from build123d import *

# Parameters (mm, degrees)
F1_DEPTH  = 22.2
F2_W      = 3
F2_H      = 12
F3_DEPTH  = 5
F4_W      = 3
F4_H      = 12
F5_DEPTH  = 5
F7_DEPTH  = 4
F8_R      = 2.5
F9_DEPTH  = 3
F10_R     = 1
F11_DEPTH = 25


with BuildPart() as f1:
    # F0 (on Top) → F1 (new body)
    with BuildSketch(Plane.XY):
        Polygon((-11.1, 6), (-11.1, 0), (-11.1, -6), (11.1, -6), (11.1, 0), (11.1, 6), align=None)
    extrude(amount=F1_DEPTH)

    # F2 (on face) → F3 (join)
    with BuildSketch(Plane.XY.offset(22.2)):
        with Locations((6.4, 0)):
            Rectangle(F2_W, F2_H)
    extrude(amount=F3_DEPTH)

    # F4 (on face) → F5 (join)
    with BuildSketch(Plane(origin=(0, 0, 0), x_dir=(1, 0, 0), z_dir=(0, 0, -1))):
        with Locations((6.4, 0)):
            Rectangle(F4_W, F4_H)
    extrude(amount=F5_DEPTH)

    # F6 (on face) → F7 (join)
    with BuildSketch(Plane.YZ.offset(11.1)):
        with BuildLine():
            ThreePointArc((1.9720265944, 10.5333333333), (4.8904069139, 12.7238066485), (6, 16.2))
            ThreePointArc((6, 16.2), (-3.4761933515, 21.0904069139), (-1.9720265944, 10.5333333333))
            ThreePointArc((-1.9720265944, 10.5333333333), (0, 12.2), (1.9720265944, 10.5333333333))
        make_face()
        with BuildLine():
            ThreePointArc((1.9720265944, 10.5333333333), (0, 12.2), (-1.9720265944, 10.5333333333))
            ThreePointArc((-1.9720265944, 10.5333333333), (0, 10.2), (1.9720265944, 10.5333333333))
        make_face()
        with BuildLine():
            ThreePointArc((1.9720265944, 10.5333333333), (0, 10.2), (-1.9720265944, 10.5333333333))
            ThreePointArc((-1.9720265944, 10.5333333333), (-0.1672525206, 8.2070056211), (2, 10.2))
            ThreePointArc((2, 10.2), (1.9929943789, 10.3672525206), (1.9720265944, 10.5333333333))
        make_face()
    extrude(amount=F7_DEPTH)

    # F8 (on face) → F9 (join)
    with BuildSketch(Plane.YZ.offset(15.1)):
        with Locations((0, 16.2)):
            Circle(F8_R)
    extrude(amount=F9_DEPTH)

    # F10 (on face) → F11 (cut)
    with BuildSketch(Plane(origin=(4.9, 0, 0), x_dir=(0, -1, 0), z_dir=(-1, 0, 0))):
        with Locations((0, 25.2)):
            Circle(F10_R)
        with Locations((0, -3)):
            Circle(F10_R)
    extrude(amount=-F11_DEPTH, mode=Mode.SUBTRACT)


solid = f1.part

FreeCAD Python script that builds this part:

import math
import FreeCAD as App
import Part
import Sketcher
from FreeCAD import Vector

doc = App.newDocument("Part")
body = doc.addObject("PartDesign::Body", "Body")

# Sketch on XY plane
sketch1 = doc.addObject("Sketcher::SketchObject", "Sketch")
body.addObject(sketch1)
sketch1.AttachmentSupport = (doc.XY_Plane, [""])
sketch1.MapMode = "FlatFace"
sketch1.addGeometry(Part.LineSegment(Vector(-11, 6, 0), Vector(-11, -6, 0)), False)
sketch1.addGeometry(Part.LineSegment(Vector(-11, -6, 0), Vector(11, -6, 0)), False)
sketch1.addGeometry(Part.LineSegment(Vector(11, -6, 0), Vector(11, 6, 0)), False)
sketch1.addGeometry(Part.LineSegment(Vector(11, 6, 0), Vector(-11, 6, 0)), False)
sketch1.addConstraint(Sketcher.Constraint("Coincident", 0, 2, 1, 1))
sketch1.addConstraint(Sketcher.Constraint("Coincident", 1, 2, 2, 1))
sketch1.addConstraint(Sketcher.Constraint("Coincident", 2, 2, 3, 1))
sketch1.addConstraint(Sketcher.Constraint("Coincident", 3, 2, 0, 1))
sketch1.addConstraint(Sketcher.Constraint("Vertical", 0))
sketch1.addConstraint(Sketcher.Constraint("Horizontal", 1))
sketch1.addConstraint(Sketcher.Constraint("Vertical", 2))
sketch1.addConstraint(Sketcher.Constraint("Horizontal", 3))
sketch1.addConstraint(Sketcher.Constraint("Symmetric", 0, 2, 2, 2, -1, 1))
sketch1.addConstraint(Sketcher.Constraint("DistanceY", 0, 2, 0, 1, 12.0))
sketch1.addConstraint(Sketcher.Constraint("DistanceX", 1, 1, 1, 2, 22.2))
pad1 = doc.addObject("PartDesign::Pad", "Pad")
body.addObject(pad1)
pad1.Profile = sketch1
pad1.Length = 22.2

# Sketch on XY plane
sketch2 = doc.addObject("Sketcher::SketchObject", "Sketch001")
body.addObject(sketch2)
sketch2.AttachmentSupport = (doc.XY_Plane, [""])
sketch2.MapMode = "FlatFace"
sketch2.AttachmentOffset = App.Placement(Vector(0, 0, 22.2), App.Rotation())
sketch2.addGeometry(Part.LineSegment(Vector(4.9, 6, 0), Vector(4.9, -6, 0)), False)
sketch2.addGeometry(Part.LineSegment(Vector(4.9, -6, 0), Vector(7.9, -6, 0)), False)
sketch2.addGeometry(Part.LineSegment(Vector(7.9, -6, 0), Vector(7.9, 6, 0)), False)
sketch2.addGeometry(Part.LineSegment(Vector(7.9, 6, 0), Vector(4.9, 6, 0)), False)
sketch2.addConstraint(Sketcher.Constraint("Coincident", 0, 2, 1, 1))
sketch2.addConstraint(Sketcher.Constraint("Coincident", 1, 2, 2, 1))
sketch2.addConstraint(Sketcher.Constraint("Coincident", 2, 2, 3, 1))
sketch2.addConstraint(Sketcher.Constraint("Coincident", 3, 2, 0, 1))
sketch2.addConstraint(Sketcher.Constraint("Vertical", 0))
sketch2.addConstraint(Sketcher.Constraint("Horizontal", 1))
sketch2.addConstraint(Sketcher.Constraint("Vertical", 2))
sketch2.addConstraint(Sketcher.Constraint("Horizontal", 3))
sketch2.addConstraint(Sketcher.Constraint("DistanceX", 1, 1, 1, 2, 3.0))
sketch2.addConstraint(Sketcher.Constraint("DistanceY", 0, 2, 0, 1, 12.0))
sketch2.addConstraint(Sketcher.Constraint("DistanceY", 0, 2, -1, 1, 6.0))
sketch2.addConstraint(Sketcher.Constraint("DistanceX", -1, 1, 0, 2, 4.9))
pad2 = doc.addObject("PartDesign::Pad", "Pad001")
body.addObject(pad2)
pad2.Profile = sketch2
pad2.Length = 5

# Sketch on XY plane
sketch3 = doc.addObject("Sketcher::SketchObject", "Sketch002")
body.addObject(sketch3)
sketch3.AttachmentSupport = (doc.XY_Plane, [""])
sketch3.MapMode = "FlatFace"
sketch3.addGeometry(Part.LineSegment(Vector(4.9, -6, 0), Vector(4.9, 6, 0)), False)
sketch3.addGeometry(Part.LineSegment(Vector(4.9, 6, 0), Vector(7.9, 6, 0)), False)
sketch3.addGeometry(Part.LineSegment(Vector(7.9, 6, 0), Vector(7.9, -6, 0)), False)
sketch3.addGeometry(Part.LineSegment(Vector(7.9, -6, 0), Vector(4.9, -6, 0)), False)
sketch3.addConstraint(Sketcher.Constraint("Coincident", 0, 2, 1, 1))
sketch3.addConstraint(Sketcher.Constraint("Coincident", 1, 2, 2, 1))
sketch3.addConstraint(Sketcher.Constraint("Coincident", 2, 2, 3, 1))
sketch3.addConstraint(Sketcher.Constraint("Coincident", 3, 2, 0, 1))
sketch3.addConstraint(Sketcher.Constraint("Vertical", 0))
sketch3.addConstraint(Sketcher.Constraint("Horizontal", 1))
sketch3.addConstraint(Sketcher.Constraint("Vertical", 2))
sketch3.addConstraint(Sketcher.Constraint("Horizontal", 3))
sketch3.addConstraint(Sketcher.Constraint("DistanceX", 1, 1, 1, 2, 3.0))
sketch3.addConstraint(Sketcher.Constraint("DistanceY", 0, 1, 0, 2, 12.0))
sketch3.addConstraint(Sketcher.Constraint("DistanceY", -1, 1, 0, 2, 6.0))
sketch3.addConstraint(Sketcher.Constraint("DistanceX", -1, 1, 0, 2, 4.9))
pad3 = doc.addObject("PartDesign::Pad", "Pad002")
body.addObject(pad3)
pad3.Profile = sketch3
pad3.Length = 5
pad3.Reversed = True

# Sketch on YZ plane
sketch4 = doc.addObject("Sketcher::SketchObject", "Sketch003")
body.addObject(sketch4)
sketch4.AttachmentSupport = (doc.YZ_Plane, [""])
sketch4.MapMode = "FlatFace"
sketch4.AttachmentOffset = App.Placement(Vector(0, 0, 11.1), App.Rotation())
sketch4.addGeometry(Part.ArcOfCircle(Part.Circle(Vector(0, 16.2, 0), Vector(0, 0, 1), 6), math.radians(-71), math.radians(0)), False)
sketch4.addGeometry(Part.ArcOfCircle(Part.Circle(Vector(0, 16.2, 0), Vector(0, 0, 1), 6), math.radians(0), math.radians(251)), False)
sketch4.addGeometry(Part.ArcOfCircle(Part.Circle(Vector(0, 10.2, 0), Vector(0, 0, 1), 2), math.radians(170), math.radians(360)), False)
sketch4.addGeometry(Part.ArcOfCircle(Part.Circle(Vector(0, 10.2, 0), Vector(0, 0, 1), 2), math.radians(0), math.radians(9.59)), False)
sketch4.addConstraint(Sketcher.Constraint("Tangent", 0, 2, 1, 1))
sketch4.addConstraint(Sketcher.Constraint("Coincident", 1, 2, 2, 1))
sketch4.addConstraint(Sketcher.Constraint("Tangent", 2, 2, 3, 1))
sketch4.addConstraint(Sketcher.Constraint("Coincident", 3, 2, 0, 1))
sketch4.addConstraint(Sketcher.Constraint("Equal", 0, 1))
sketch4.addConstraint(Sketcher.Constraint("Equal", 2, 3))
sketch4.addConstraint(Sketcher.Constraint("Symmetric", 1, 2, 3, 2, -2))
sketch4.addConstraint(Sketcher.Constraint("Horizontal", 1, 3, 0, 2))
sketch4.addConstraint(Sketcher.Constraint("Horizontal", 3, 3, 2, 2))
sketch4.addConstraint(Sketcher.Constraint("Radius", 0, 6.0))
sketch4.addConstraint(Sketcher.Constraint("Radius", 2, 2.0))
sketch4.addConstraint(Sketcher.Constraint("DistanceY", 2, 3, 0, 3, 6.0))
sketch4.addConstraint(Sketcher.Constraint("DistanceY", -1, 1, 0, 3, 16.2))
pad4 = doc.addObject("PartDesign::Pad", "Pad003")
body.addObject(pad4)
pad4.Profile = sketch4
pad4.Length = 4

# Sketch on YZ plane
sketch5 = doc.addObject("Sketcher::SketchObject", "Sketch004")
body.addObject(sketch5)
sketch5.AttachmentSupport = (doc.YZ_Plane, [""])
sketch5.MapMode = "FlatFace"
sketch5.AttachmentOffset = App.Placement(Vector(0, 0, 15.1), App.Rotation())
sketch5.addGeometry(Part.Circle(Vector(0, 16.2, 0), Vector(0, 0, 1), 2.5), False)
sketch5.addConstraint(Sketcher.Constraint("PointOnObject", 0, 3, -2))
sketch5.addConstraint(Sketcher.Constraint("Diameter", 0, 5.0))
sketch5.addConstraint(Sketcher.Constraint("DistanceY", -1, 1, 0, 3, 16.2))
pad5 = doc.addObject("PartDesign::Pad", "Pad004")
body.addObject(pad5)
pad5.Profile = sketch5
pad5.Length = 3

# Sketch on YZ plane
sketch6 = doc.addObject("Sketcher::SketchObject", "Sketch005")
body.addObject(sketch6)
sketch6.AttachmentSupport = (doc.YZ_Plane, [""])
sketch6.MapMode = "FlatFace"
sketch6.AttachmentOffset = App.Placement(Vector(0, 0, 4.9), App.Rotation())
sketch6.addGeometry(Part.Circle(Vector(0, 25.2, 0), Vector(0, 0, 1), 1), False)
sketch6.addGeometry(Part.Circle(Vector(0, -3, 0), Vector(0, 0, 1), 1), False)
sketch6.addConstraint(Sketcher.Constraint("Equal", 0, 1))
sketch6.addConstraint(Sketcher.Constraint("PointOnObject", 0, 3, -2))
sketch6.addConstraint(Sketcher.Constraint("PointOnObject", 1, 3, -2))
sketch6.addConstraint(Sketcher.Constraint("Diameter", 0, 2.0))
sketch6.addConstraint(Sketcher.Constraint("DistanceY", 1, 3, -1, 1, 3.0))
sketch6.addConstraint(Sketcher.Constraint("DistanceY", -1, 1, 0, 3, 25.2))
pocket1 = doc.addObject("PartDesign::Pocket", "Pocket")
body.addObject(pocket1)
pocket1.Profile = sketch6
pocket1.Length = 25
pocket1.Reversed = True

doc.recompute()
